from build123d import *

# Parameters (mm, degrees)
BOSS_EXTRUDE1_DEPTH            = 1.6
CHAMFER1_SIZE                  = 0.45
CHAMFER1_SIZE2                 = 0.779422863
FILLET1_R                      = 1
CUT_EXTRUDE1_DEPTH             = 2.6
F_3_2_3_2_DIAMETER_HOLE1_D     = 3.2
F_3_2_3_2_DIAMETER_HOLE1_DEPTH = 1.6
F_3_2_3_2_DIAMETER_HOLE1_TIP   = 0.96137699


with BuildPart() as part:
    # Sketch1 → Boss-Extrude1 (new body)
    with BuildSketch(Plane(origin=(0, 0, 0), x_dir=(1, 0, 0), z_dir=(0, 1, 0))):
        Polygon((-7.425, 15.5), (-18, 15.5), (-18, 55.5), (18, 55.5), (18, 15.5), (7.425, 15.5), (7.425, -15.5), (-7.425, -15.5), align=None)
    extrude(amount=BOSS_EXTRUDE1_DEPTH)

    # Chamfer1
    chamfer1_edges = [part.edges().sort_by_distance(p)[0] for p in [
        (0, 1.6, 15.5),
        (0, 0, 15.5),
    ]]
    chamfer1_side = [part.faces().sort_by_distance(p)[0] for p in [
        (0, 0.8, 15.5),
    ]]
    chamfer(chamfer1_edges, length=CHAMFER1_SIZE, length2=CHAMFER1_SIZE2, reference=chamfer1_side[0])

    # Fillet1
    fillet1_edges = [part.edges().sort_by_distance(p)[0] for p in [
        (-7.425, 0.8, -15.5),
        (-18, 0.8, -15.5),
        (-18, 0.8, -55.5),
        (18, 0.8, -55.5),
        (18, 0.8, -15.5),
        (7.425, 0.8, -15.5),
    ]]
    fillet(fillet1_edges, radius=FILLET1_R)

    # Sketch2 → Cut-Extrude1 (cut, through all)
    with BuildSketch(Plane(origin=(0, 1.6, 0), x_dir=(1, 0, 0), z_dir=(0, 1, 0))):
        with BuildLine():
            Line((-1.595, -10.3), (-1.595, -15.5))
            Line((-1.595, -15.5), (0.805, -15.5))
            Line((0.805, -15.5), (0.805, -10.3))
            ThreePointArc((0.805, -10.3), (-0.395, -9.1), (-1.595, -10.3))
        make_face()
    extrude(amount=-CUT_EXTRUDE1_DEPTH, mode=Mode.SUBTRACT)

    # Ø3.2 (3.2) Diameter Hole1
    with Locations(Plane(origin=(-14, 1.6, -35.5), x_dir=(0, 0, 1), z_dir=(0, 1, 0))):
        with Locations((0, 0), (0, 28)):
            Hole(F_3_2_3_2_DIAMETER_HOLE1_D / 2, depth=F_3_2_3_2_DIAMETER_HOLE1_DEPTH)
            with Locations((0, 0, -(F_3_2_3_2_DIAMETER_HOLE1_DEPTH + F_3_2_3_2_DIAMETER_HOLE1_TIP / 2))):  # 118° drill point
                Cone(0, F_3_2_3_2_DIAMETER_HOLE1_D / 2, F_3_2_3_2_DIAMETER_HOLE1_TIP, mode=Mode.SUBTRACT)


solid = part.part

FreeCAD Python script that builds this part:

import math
import FreeCAD as App
import Part
import Sketcher

V = App.Vector


def edges_at(feature, points):
    """Names of the edges that pass closest to the given points."""
    edges = feature.Shape.Edges
    near = lambda p: min(range(len(edges)), key=lambda i: edges[i].distToShape(Part.Vertex(*p))[0])
    return sorted({f"Edge{near(p) + 1}" for p in points})

doc = App.newDocument("Part")
body = doc.addObject("PartDesign::Body", "Body")

sketch1 = doc.addObject("Sketcher::SketchObject", "Sketch")
body.addObject(sketch1)
sketch1.AttachmentSupport = (doc.XZ_Plane, [""])
sketch1.MapMode = "FlatFace"
sketch1.addGeometry(Part.LineSegment(V(-18, -15.5, 0), V(-7.425, -15.5, 0)), False)
sketch1.addGeometry(Part.LineSegment(V(-7.425, -15.5, 0), V(-7.425, 15.5, 0)), False)
sketch1.addGeometry(Part.LineSegment(V(-7.425, 15.5, 0), V(7.425, 15.5, 0)), False)
sketch1.addGeometry(Part.LineSegment(V(7.425, 15.5, 0), V(7.425, -15.5, 0)), False)
sketch1.addGeometry(Part.LineSegment(V(7.425, -15.5, 0), V(18, -15.5, 0)), False)
sketch1.addGeometry(Part.LineSegment(V(18, -15.5, 0), V(18, -55.5, 0)), False)
sketch1.addGeometry(Part.LineSegment(V(18, -55.5, 0), V(-18, -55.5, 0)), False)
sketch1.addGeometry(Part.LineSegment(V(-18, -55.5, 0), V(-18, -15.5, 0)), False)
sketch1.addConstraint(Sketcher.Constraint("Coincident", 0, 2, 1, 1))
sketch1.addConstraint(Sketcher.Constraint("Coincident", 1, 2, 2, 1))
sketch1.addConstraint(Sketcher.Constraint("Coincident", 2, 2, 3, 1))
sketch1.addConstraint(Sketcher.Constraint("Coincident", 3, 2, 4, 1))
sketch1.addConstraint(Sketcher.Constraint("Coincident", 4, 2, 5, 1))
sketch1.addConstraint(Sketcher.Constraint("Coincident", 5, 2, 6, 1))
sketch1.addConstraint(Sketcher.Constraint("Coincident", 6, 2, 7, 1))
sketch1.addConstraint(Sketcher.Constraint("Coincident", 7, 2, 0, 1))
sketch1.addConstraint(Sketcher.Constraint("Horizontal", 0))
sketch1.addConstraint(Sketcher.Constraint("Vertical", 1))
sketch1.addConstraint(Sketcher.Constraint("Horizontal", 2))
sketch1.addConstraint(Sketcher.Constraint("Vertical", 3))
sketch1.addConstraint(Sketcher.Constraint("Horizontal", 4))
sketch1.addConstraint(Sketcher.Constraint("Vertical", 5))
sketch1.addConstraint(Sketcher.Constraint("Horizontal", 6))
sketch1.addConstraint(Sketcher.Constraint("Vertical", 7))
sketch1.addConstraint(Sketcher.Constraint("Symmetric", 0, 2, 2, 2, -1, 1))
sketch1.addConstraint(Sketcher.Constraint("Symmetric", 4, 2, 7, 2, -2))
sketch1.addConstraint(Sketcher.Constraint("DistanceX", 6, 2, 6, 1, 36.0))
sketch1.addConstraint(Sketcher.Constraint("DistanceY", 1, 1, 1, 2, 31.0))
sketch1.addConstraint(Sketcher.Constraint("DistanceY", 5, 2, 5, 1, 40.0))
sketch1.addConstraint(Sketcher.Constraint("DistanceX", 2, 1, 2, 2, 14.85))
pad1 = doc.addObject("PartDesign::Pad", "Pad")
body.addObject(pad1)
pad1.Profile = sketch1
pad1.Length = 1.6
pad1.Reversed = True
doc.recompute()

chamfer = doc.addObject("PartDesign::Chamfer", "Chamfer")
body.addObject(chamfer)
chamfer.Base = (pad1, edges_at(pad1, [(0, 1.6, 15.5), (0, 0, 15.5)]))
chamfer.ChamferType = "Two distances"
chamfer.Size = 0.45
chamfer.Size2 = 0.779423
doc.recompute()

fillet = doc.addObject("PartDesign::Fillet", "Fillet")
body.addObject(fillet)
fillet.Base = (chamfer, edges_at(chamfer, [
    (-7.425, 0.8, -15.5),
    (-18, 0.8, -15.5),
    (-18, 0.8, -55.5),
    (18, 0.8, -55.5),
    (18, 0.8, -15.5),
    (7.425, 0.8, -15.5),
]))
fillet.Radius = 1

sketch2 = doc.addObject("Sketcher::SketchObject", "Sketch001")
body.addObject(sketch2)
sketch2.AttachmentSupport = (doc.XZ_Plane, [""])
sketch2.MapMode = "FlatFace"
sketch2.AttachmentOffset = App.Placement(V(0, 0, -1.6), App.Rotation())
sketch2.addGeometry(Part.LineSegment(V(-1.595, 10.3, 0), V(-1.595, 15.5, 0)), False)
sketch2.addGeometry(Part.LineSegment(V(-1.595, 15.5, 0), V(0.805, 15.5, 0)), False)
sketch2.addGeometry(Part.LineSegment(V(0.805, 15.5, 0), V(0.805, 10.3, 0)), False)
sketch2.addGeometry(Part.ArcOfCircle(Part.Circle(V(-0.395, 10.3, 0), V(0, 0, 1), 1.2), math.radians(180), math.radians(360)), False)
sketch2.addConstraint(Sketcher.Constraint("Coincident", 0, 2, 1, 1))
sketch2.addConstraint(Sketcher.Constraint("Coincident", 1, 2, 2, 1))
sketch2.addConstraint(Sketcher.Constraint("Tangent", 2, 2, 3, 2))
sketch2.addConstraint(Sketcher.Constraint("Tangent", 3, 1, 0, 1))
sketch2.addConstraint(Sketcher.Constraint("Vertical", 0))
sketch2.addConstraint(Sketcher.Constraint("Horizontal", 1))
sketch2.addConstraint(Sketcher.Constraint("Vertical", 2))
sketch2.addConstraint(Sketcher.Constraint("Radius", 3, 1.2))
sketch2.addConstraint(Sketcher.Constraint("DistanceY", 0, 1, 0, 2, 5.2))
sketch2.addConstraint(Sketcher.Constraint("DistanceY", -1, 1, 3, 3, 10.3))
sketch2.addConstraint(Sketcher.Constraint("DistanceX", 3, 3, -1, 1, 0.395))
pocket1 = doc.addObject("PartDesign::Pocket", "Pocket")
body.addObject(pocket1)
pocket1.Profile = sketch2
pocket1.Type = "ThroughAll"
pocket1.Reversed = True

sketch3 = doc.addObject("Sketcher::SketchObject", "Sketch002")
body.addObject(sketch3)
sketch3.AttachmentSupport = (doc.XZ_Plane, [""])
sketch3.MapMode = "FlatFace"
sketch3.AttachmentOffset = App.Placement(V(0, 0, -1.6), App.Rotation())
sketch3.addGeometry(Part.Circle(V(-14, -35.5, 0), V(0, 0, 1), 1.6), False)
sketch3.addGeometry(Part.Circle(V(14, -35.5, 0), V(0, 0, 1), 1.6), False)
sketch3.addConstraint(Sketcher.Constraint("Equal", 0, 1))
sketch3.addConstraint(Sketcher.Constraint("Symmetric", 0, 3, 1, 3, -2))
sketch3.addConstraint(Sketcher.Constraint("Diameter", 0, 3.2))
sketch3.addConstraint(Sketcher.Constraint("DistanceX", 0, 3, -1, 1, 14.0))
sketch3.addConstraint(Sketcher.Constraint("DistanceY", 0, 3, -1, 1, 35.5))
doc.recompute()
hole = doc.addObject("PartDesign::Hole", "Hole")
body.addObject(hole)
hole.Profile = sketch3
hole.ThreadType = "None"
hole.Diameter = 3.2
hole.DepthType = "Dimension"
hole.Depth = 1.6
hole.DrillPoint = "Angled"
hole.DrillPointAngle = 118
hole.Reversed = True

doc.recompute()
